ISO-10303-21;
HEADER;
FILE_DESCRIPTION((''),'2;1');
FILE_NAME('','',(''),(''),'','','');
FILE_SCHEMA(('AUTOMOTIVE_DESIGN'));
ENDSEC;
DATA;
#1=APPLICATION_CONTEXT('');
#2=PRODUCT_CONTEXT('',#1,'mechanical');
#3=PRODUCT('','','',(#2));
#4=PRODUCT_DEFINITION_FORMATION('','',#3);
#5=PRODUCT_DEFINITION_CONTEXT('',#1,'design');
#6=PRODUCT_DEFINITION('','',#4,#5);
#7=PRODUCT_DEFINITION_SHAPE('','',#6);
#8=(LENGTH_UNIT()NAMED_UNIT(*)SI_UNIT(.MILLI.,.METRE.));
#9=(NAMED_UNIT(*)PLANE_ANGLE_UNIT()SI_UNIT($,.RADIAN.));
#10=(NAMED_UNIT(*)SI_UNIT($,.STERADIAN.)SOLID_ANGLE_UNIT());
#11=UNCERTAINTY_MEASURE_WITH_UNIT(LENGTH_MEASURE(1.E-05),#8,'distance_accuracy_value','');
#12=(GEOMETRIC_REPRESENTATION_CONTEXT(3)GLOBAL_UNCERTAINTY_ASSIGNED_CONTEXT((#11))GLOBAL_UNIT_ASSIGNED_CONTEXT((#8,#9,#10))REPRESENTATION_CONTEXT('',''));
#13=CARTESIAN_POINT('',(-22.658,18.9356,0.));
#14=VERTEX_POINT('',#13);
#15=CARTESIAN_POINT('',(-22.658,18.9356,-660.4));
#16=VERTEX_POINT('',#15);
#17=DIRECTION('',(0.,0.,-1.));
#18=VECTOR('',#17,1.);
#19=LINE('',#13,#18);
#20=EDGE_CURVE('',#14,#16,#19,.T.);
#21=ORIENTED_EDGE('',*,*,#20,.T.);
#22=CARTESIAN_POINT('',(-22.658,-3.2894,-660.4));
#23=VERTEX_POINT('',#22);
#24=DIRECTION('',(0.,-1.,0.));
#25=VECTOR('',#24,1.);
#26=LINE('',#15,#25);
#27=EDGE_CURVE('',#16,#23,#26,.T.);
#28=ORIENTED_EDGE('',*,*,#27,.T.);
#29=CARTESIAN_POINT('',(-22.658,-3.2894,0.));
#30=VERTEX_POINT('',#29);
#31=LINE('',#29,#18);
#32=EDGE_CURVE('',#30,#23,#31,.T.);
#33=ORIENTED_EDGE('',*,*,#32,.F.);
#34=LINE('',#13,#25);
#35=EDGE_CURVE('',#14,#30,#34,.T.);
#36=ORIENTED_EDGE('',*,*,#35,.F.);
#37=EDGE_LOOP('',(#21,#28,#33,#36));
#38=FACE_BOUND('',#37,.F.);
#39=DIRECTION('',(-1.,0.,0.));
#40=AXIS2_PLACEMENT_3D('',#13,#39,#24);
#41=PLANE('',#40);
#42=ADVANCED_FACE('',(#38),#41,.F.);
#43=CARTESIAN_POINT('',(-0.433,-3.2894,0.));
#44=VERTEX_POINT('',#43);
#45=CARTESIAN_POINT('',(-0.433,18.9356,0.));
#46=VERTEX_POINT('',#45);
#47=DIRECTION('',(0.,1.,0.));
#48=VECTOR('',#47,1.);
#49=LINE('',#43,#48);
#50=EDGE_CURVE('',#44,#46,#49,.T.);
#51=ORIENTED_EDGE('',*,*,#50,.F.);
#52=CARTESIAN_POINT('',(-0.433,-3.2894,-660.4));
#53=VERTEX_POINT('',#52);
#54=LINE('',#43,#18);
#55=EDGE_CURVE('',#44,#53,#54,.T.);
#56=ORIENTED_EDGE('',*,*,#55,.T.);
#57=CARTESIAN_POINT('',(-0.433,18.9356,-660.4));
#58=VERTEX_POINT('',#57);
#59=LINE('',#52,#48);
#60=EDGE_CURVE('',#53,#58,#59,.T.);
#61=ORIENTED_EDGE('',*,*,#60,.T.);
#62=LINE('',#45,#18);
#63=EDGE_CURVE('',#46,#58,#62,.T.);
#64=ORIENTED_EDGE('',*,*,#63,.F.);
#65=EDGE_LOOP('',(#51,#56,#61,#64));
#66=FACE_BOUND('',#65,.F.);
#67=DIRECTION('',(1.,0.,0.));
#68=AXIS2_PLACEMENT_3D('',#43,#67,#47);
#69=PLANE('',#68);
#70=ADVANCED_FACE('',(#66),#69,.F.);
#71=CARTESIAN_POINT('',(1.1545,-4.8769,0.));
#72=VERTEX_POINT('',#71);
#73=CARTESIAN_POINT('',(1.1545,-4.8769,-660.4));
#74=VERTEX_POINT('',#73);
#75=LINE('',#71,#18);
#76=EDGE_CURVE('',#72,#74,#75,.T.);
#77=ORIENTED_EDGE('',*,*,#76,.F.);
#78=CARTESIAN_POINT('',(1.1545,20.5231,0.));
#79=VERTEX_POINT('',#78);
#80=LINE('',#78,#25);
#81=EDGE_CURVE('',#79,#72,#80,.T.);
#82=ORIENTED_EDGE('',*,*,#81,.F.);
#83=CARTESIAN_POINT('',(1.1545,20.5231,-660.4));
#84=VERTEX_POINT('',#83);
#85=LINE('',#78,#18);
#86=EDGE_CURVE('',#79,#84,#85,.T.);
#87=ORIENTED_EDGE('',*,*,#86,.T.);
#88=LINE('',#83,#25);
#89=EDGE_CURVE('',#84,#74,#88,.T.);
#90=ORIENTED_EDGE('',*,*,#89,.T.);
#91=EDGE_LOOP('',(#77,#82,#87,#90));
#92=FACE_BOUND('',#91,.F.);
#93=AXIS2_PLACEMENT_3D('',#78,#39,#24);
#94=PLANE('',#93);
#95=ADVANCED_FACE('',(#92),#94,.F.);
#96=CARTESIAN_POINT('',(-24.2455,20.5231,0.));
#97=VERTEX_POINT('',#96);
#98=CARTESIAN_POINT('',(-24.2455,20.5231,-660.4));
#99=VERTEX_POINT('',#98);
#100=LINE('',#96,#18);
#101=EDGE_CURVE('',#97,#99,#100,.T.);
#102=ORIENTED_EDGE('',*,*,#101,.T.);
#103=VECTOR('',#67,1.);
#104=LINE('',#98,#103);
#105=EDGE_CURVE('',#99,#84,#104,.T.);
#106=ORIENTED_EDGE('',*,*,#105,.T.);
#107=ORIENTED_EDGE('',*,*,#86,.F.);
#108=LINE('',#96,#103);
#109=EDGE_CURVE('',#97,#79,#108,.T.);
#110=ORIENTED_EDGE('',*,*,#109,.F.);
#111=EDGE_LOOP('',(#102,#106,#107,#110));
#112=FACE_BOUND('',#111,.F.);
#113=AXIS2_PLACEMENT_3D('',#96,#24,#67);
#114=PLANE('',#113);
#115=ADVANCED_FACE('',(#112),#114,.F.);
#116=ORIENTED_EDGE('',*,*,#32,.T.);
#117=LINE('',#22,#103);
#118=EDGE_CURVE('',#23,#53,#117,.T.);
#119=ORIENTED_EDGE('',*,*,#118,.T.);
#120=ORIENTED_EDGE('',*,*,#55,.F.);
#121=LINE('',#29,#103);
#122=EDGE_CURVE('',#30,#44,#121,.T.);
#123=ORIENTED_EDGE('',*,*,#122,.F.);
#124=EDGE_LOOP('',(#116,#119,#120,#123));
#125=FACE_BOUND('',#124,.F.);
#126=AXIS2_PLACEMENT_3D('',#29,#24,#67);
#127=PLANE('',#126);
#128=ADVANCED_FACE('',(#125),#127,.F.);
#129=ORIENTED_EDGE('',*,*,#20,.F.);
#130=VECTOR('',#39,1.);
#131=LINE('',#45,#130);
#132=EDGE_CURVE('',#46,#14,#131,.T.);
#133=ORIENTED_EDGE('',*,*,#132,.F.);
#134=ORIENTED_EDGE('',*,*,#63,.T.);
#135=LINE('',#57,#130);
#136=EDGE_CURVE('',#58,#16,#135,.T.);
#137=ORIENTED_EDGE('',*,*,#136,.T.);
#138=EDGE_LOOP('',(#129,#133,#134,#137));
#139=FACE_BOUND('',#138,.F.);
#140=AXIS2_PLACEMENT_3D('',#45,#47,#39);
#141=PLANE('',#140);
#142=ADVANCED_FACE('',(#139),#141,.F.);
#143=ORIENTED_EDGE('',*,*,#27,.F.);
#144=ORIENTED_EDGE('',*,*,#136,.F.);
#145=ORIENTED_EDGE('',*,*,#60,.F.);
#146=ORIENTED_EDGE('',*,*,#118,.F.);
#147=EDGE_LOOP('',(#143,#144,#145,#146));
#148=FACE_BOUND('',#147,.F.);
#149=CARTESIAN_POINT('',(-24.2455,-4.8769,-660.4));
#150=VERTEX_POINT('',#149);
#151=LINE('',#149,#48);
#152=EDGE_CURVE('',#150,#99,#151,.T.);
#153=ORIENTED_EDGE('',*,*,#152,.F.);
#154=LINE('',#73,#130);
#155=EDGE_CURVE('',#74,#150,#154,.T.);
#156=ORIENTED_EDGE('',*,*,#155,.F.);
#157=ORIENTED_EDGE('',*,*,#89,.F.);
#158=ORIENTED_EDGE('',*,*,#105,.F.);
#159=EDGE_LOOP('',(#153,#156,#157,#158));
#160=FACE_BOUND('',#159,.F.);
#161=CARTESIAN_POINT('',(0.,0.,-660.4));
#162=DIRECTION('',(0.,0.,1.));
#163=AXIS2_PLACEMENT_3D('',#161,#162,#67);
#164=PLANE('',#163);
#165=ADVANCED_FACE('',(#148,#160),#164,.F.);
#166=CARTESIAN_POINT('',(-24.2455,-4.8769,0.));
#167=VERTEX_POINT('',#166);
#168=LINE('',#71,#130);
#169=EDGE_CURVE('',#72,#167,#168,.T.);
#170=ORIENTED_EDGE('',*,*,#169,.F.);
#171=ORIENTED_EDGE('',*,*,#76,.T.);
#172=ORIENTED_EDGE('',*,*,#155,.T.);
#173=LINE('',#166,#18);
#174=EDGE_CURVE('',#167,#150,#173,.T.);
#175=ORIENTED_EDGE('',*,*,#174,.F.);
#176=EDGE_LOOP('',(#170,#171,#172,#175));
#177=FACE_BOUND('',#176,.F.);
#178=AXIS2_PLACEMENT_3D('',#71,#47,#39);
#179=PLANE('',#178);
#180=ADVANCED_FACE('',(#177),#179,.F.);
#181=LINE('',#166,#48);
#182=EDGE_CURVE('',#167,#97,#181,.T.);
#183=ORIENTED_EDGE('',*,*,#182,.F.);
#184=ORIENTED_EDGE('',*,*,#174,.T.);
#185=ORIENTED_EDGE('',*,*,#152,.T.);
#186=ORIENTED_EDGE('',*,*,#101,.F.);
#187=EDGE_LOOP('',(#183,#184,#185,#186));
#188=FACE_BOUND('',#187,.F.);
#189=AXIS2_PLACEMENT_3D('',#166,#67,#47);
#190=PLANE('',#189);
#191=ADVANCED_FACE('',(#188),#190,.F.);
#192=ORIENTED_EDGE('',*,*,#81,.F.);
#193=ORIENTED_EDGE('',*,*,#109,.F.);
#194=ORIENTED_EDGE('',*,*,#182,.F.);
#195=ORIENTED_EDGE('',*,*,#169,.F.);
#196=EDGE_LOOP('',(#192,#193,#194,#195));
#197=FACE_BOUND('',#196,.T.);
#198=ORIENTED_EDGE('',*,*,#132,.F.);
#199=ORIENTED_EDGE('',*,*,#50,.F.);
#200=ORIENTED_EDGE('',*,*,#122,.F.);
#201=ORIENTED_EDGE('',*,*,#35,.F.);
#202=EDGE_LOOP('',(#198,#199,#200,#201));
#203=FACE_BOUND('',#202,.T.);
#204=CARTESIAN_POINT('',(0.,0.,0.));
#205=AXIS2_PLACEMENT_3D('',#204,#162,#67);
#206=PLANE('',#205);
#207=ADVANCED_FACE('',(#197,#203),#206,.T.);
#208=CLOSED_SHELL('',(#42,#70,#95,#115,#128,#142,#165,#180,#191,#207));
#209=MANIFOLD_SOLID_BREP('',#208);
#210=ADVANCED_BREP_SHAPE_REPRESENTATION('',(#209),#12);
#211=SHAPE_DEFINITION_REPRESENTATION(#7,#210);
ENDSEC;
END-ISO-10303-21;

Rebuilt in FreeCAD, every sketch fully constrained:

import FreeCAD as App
import Part
import Sketcher
Q = App.Units.Quantity

doc = App.newDocument("Part")
body = doc.addObject("PartDesign::Body", "Body")

# Sketch on XY plane
sketch1 = body.newObject("Sketcher::SketchObject", "Sketch")
sketch1.AttachmentSupport = (doc.getObject("XY_Plane"), [""])
sketch1.MapMode = "FlatFace"
sketch1.addGeometry(Part.LineSegment(App.Vector(1, 21, 0), App.Vector(-24, 21, 0)), False)
sketch1.addGeometry(Part.LineSegment(App.Vector(-24, 21, 0), App.Vector(-24, -5, 0)), False)
sketch1.addGeometry(Part.LineSegment(App.Vector(-24, -5, 0), App.Vector(1, -5, 0)), False)
sketch1.addGeometry(Part.LineSegment(App.Vector(1, -5, 0), App.Vector(1, 21, 0)), False)
sketch1.addGeometry(Part.LineSegment(App.Vector(-23, 19, 0), App.Vector(0, 19, 0)), False)
sketch1.addGeometry(Part.LineSegment(App.Vector(0, 19, 0), App.Vector(0, -3, 0)), False)
sketch1.addGeometry(Part.LineSegment(App.Vector(0, -3, 0), App.Vector(-23, -3, 0)), False)
sketch1.addGeometry(Part.LineSegment(App.Vector(-23, -3, 0), App.Vector(-23, 19, 0)), False)
sketch1.addConstraint(Sketcher.Constraint("Coincident", 0, 2, 1, 1))
sketch1.addConstraint(Sketcher.Constraint("Coincident", 1, 2, 2, 1))
sketch1.addConstraint(Sketcher.Constraint("Coincident", 2, 2, 3, 1))
sketch1.addConstraint(Sketcher.Constraint("Coincident", 3, 2, 0, 1))
sketch1.addConstraint(Sketcher.Constraint("Coincident", 4, 2, 5, 1))
sketch1.addConstraint(Sketcher.Constraint("Coincident", 5, 2, 6, 1))
sketch1.addConstraint(Sketcher.Constraint("Coincident", 6, 2, 7, 1))
sketch1.addConstraint(Sketcher.Constraint("Coincident", 7, 2, 4, 1))
sketch1.addConstraint(Sketcher.Constraint("Horizontal", 0))
sketch1.addConstraint(Sketcher.Constraint("Vertical", 1))
sketch1.addConstraint(Sketcher.Constraint("Horizontal", 2))
sketch1.addConstraint(Sketcher.Constraint("Vertical", 3))
sketch1.addConstraint(Sketcher.Constraint("Horizontal", 4))
sketch1.addConstraint(Sketcher.Constraint("Vertical", 5))
sketch1.addConstraint(Sketcher.Constraint("Horizontal", 6))
sketch1.addConstraint(Sketcher.Constraint("Vertical", 7))
sketch1.addConstraint(Sketcher.Constraint("Equal", 2, 1))
sketch1.addConstraint(Sketcher.Constraint("Equal", 6, 5))
sketch1.addConstraint(Sketcher.Constraint("DistanceX", 0, 2, 0, 1, Q("1 in")))
sketch1.addConstraint(Sketcher.Constraint("DistanceX", 4, 2, 3, 2, Q("0.0625 in")))
sketch1.addConstraint(Sketcher.Constraint("DistanceY", 4, 2, 3, 2, Q("0.0625 in")))
sketch1.addConstraint(Sketcher.Constraint("DistanceY", 2, 2, 5, 2, Q("0.0625 in")))
sketch1.addConstraint(Sketcher.Constraint("DistanceY", -1, 1, 0, 2, Q("0.808 in")))
sketch1.addConstraint(Sketcher.Constraint("DistanceX", 0, 2, -1, 1, 24.2455))
pad1 = body.newObject("PartDesign::Pad", "Pad")
pad1.Profile = sketch1
pad1.Length = Q("26 in")
pad1.Reversed = True

doc.recompute()
